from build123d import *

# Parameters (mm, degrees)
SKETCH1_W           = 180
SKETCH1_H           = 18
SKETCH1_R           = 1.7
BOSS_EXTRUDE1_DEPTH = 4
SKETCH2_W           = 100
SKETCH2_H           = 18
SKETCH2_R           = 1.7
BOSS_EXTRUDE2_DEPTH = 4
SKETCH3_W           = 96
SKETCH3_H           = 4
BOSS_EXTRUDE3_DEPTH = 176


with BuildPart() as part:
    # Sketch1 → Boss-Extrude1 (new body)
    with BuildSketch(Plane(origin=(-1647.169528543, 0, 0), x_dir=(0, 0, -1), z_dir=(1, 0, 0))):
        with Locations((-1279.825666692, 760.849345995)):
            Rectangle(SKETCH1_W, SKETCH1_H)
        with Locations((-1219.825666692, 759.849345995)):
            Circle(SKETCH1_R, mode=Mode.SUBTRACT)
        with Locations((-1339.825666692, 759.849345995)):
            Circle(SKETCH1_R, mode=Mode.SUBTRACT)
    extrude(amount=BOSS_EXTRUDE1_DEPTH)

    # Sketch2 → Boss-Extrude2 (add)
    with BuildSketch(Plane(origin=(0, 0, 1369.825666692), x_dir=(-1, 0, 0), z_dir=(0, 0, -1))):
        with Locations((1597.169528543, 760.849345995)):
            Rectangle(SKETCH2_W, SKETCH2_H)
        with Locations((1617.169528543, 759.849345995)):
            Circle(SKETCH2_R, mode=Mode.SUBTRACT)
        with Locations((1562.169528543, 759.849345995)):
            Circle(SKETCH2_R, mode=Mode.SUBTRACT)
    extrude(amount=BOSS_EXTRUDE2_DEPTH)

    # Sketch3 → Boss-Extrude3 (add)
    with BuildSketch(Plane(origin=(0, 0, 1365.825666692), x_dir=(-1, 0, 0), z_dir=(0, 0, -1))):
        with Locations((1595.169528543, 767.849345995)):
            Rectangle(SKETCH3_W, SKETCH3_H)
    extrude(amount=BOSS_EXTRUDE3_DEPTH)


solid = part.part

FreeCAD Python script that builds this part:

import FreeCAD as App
import Part
import Sketcher
from FreeCAD import Vector
Q = App.Units.Quantity

doc = App.newDocument("Part")
body = doc.addObject("PartDesign::Body", "Body")

# Sketch on YZ plane
sketch1 = body.newObject("Sketcher::SketchObject", "Sketch")
sketch1.AttachmentSupport = (doc.getObject("YZ_Plane"), [""])
sketch1.MapMode = "FlatFace"
sketch1.AttachmentOffset = App.Placement(Vector(0, 0, -1647.169529), App.Rotation())
sketch1.addGeometry(Part.LineSegment(Vector(769.849346, 1369.825667, 0), Vector(751.849346, 1369.825667, 0)), False)
sketch1.addGeometry(Part.LineSegment(Vector(751.849346, 1369.825667, 0), Vector(751.849346, 1189.825667, 0)), False)
sketch1.addGeometry(Part.LineSegment(Vector(751.849346, 1189.825667, 0), Vector(769.849346, 1189.825667, 0)), False)
sketch1.addGeometry(Part.LineSegment(Vector(769.849346, 1189.825667, 0), Vector(769.849346, 1369.825667, 0)), False)
sketch1.addGeometry(Part.Circle(Vector(759.849346, 1339.825667, 0), Vector(0, 0, 1), 1.7), False)
sketch1.addGeometry(Part.Circle(Vector(759.849346, 1219.825667, 0), Vector(0, 0, 1), 1.7), False)
sketch1.addConstraint(Sketcher.Constraint("Coincident", 0, 2, 1, 1))
sketch1.addConstraint(Sketcher.Constraint("Coincident", 1, 2, 2, 1))
sketch1.addConstraint(Sketcher.Constraint("Coincident", 2, 2, 3, 1))
sketch1.addConstraint(Sketcher.Constraint("Coincident", 3, 2, 0, 1))
sketch1.addConstraint(Sketcher.Constraint("Horizontal", 0))
sketch1.addConstraint(Sketcher.Constraint("Vertical", 1))
sketch1.addConstraint(Sketcher.Constraint("Horizontal", 2))
sketch1.addConstraint(Sketcher.Constraint("Vertical", 3))
sketch1.addConstraint(Sketcher.Constraint("Equal", 4, 5))
sketch1.addConstraint(Sketcher.Constraint("Vertical", 4, 3, 5, 3))
sketch1.addConstraint(Sketcher.Constraint("Diameter", 4, Q("3.4 mm")))
sketch1.addConstraint(Sketcher.Constraint("DistanceX", 0, 2, 0, 1, Q("18 mm")))
sketch1.addConstraint(Sketcher.Constraint("DistanceY", 1, 2, 1, 1, Q("180 mm")))
sketch1.addConstraint(Sketcher.Constraint("DistanceY", 5, 3, 4, 3, Q("120 mm")))
sketch1.addConstraint(Sketcher.Constraint("DistanceX", 0, 2, 4, 3, Q("8 mm")))
sketch1.addConstraint(Sketcher.Constraint("DistanceY", 4, 3, 0, 2, Q("30 mm")))
sketch1.addConstraint(Sketcher.Constraint("DistanceX", -1, 1, 4, 3, Q("759.849346 mm")))
sketch1.addConstraint(Sketcher.Constraint("DistanceY", -1, 1, 4, 3, Q("1339.825667 mm")))
pad1 = body.newObject("PartDesign::Pad", "Pad")
pad1.Profile = sketch1
pad1.Length = 4

# Sketch on XY plane
sketch2 = body.newObject("Sketcher::SketchObject", "Sketch001")
sketch2.AttachmentSupport = (doc.getObject("XY_Plane"), [""])
sketch2.MapMode = "FlatFace"
sketch2.AttachmentOffset = App.Placement(Vector(0, 0, 1369.825667), App.Rotation())
sketch2.addGeometry(Part.LineSegment(Vector(-1547.169529, 769.849346, 0), Vector(-1547.169529, 751.849346, 0)), False)
sketch2.addGeometry(Part.LineSegment(Vector(-1547.169529, 751.849346, 0), Vector(-1647.169529, 751.849346, 0)), False)
sketch2.addGeometry(Part.LineSegment(Vector(-1647.169529, 751.849346, 0), Vector(-1647.169529, 769.849346, 0)), False)
sketch2.addGeometry(Part.LineSegment(Vector(-1647.169529, 769.849346, 0), Vector(-1547.169529, 769.849346, 0)), False)
sketch2.addGeometry(Part.Circle(Vector(-1562.169529, 759.849346, 0), Vector(0, 0, 1), 1.7), False)
sketch2.addGeometry(Part.Circle(Vector(-1617.169529, 759.849346, 0), Vector(0, 0, 1), 1.7), False)
sketch2.addConstraint(Sketcher.Constraint("Coincident", 0, 2, 1, 1))
sketch2.addConstraint(Sketcher.Constraint("Coincident", 1, 2, 2, 1))
sketch2.addConstraint(Sketcher.Constraint("Coincident", 2, 2, 3, 1))
sketch2.addConstraint(Sketcher.Constraint("Coincident", 3, 2, 0, 1))
sketch2.addConstraint(Sketcher.Constraint("Vertical", 0))
sketch2.addConstraint(Sketcher.Constraint("Horizontal", 1))
sketch2.addConstraint(Sketcher.Constraint("Vertical", 2))
sketch2.addConstraint(Sketcher.Constraint("Horizontal", 3))
sketch2.addConstraint(Sketcher.Constraint("Equal", 4, 5))
sketch2.addConstraint(Sketcher.Constraint("Horizontal", 4, 3, 5, 3))
sketch2.addConstraint(Sketcher.Constraint("Diameter", 4, Q("3.4 mm")))
sketch2.addConstraint(Sketcher.Constraint("DistanceX", 1, 2, 1, 1, Q("100 mm")))
sketch2.addConstraint(Sketcher.Constraint("DistanceY", 0, 2, 0, 1, Q("18 mm")))
sketch2.addConstraint(Sketcher.Constraint("DistanceX", 5, 3, 4, 3, Q("55 mm")))
sketch2.addConstraint(Sketcher.Constraint("DistanceX", 4, 3, 0, 2, Q("15 mm")))
sketch2.addConstraint(Sketcher.Constraint("DistanceY", 0, 2, 4, 3, Q("8 mm")))
sketch2.addConstraint(Sketcher.Constraint("DistanceX", 4, 3, -1, 1, Q("1562.169529 mm")))
sketch2.addConstraint(Sketcher.Constraint("DistanceY", -1, 1, 4, 3, Q("759.849346 mm")))
pad2 = body.newObject("PartDesign::Pad", "Pad001")
pad2.Profile = sketch2
pad2.Length = 4
pad2.Reversed = True

# Sketch on XY plane
sketch3 = body.newObject("Sketcher::SketchObject", "Sketch002")
sketch3.AttachmentSupport = (doc.getObject("XY_Plane"), [""])
sketch3.MapMode = "FlatFace"
sketch3.AttachmentOffset = App.Placement(Vector(0, 0, 1365.825667), App.Rotation())
sketch3.addGeometry(Part.LineSegment(Vector(-1547.169529, 769.849346, 0), Vector(-1547.169529, 765.849346, 0)), False)
sketch3.addGeometry(Part.LineSegment(Vector(-1547.169529, 765.849346, 0), Vector(-1643.169529, 765.849346, 0)), False)
sketch3.addGeometry(Part.LineSegment(Vector(-1643.169529, 765.849346, 0), Vector(-1643.169529, 769.849346, 0)), False)
sketch3.addGeometry(Part.LineSegment(Vector(-1643.169529, 769.849346, 0), Vector(-1547.169529, 769.849346, 0)), False)
sketch3.addConstraint(Sketcher.Constraint("Coincident", 0, 2, 1, 1))
sketch3.addConstraint(Sketcher.Constraint("Coincident", 1, 2, 2, 1))
sketch3.addConstraint(Sketcher.Constraint("Coincident", 2, 2, 3, 1))
sketch3.addConstraint(Sketcher.Constraint("Coincident", 3, 2, 0, 1))
sketch3.addConstraint(Sketcher.Constraint("Vertical", 0))
sketch3.addConstraint(Sketcher.Constraint("Horizontal", 1))
sketch3.addConstraint(Sketcher.Constraint("Vertical", 2))
sketch3.addConstraint(Sketcher.Constraint("Horizontal", 3))
sketch3.addConstraint(Sketcher.Constraint("DistanceX", 1, 2, 1, 1, Q("96 mm")))
sketch3.addConstraint(Sketcher.Constraint("DistanceY", 0, 2, 0, 1, Q("4 mm")))
sketch3.addConstraint(Sketcher.Constraint("DistanceX", 0, 2, -1, 1, Q("1547.169529 mm")))
sketch3.addConstraint(Sketcher.Constraint("DistanceY", -1, 1, 0, 2, Q("765.849346 mm")))
pad3 = body.newObject("PartDesign::Pad", "Pad002")
pad3.Profile = sketch3
pad3.Length = 176
pad3.Reversed = True

doc.recompute()
